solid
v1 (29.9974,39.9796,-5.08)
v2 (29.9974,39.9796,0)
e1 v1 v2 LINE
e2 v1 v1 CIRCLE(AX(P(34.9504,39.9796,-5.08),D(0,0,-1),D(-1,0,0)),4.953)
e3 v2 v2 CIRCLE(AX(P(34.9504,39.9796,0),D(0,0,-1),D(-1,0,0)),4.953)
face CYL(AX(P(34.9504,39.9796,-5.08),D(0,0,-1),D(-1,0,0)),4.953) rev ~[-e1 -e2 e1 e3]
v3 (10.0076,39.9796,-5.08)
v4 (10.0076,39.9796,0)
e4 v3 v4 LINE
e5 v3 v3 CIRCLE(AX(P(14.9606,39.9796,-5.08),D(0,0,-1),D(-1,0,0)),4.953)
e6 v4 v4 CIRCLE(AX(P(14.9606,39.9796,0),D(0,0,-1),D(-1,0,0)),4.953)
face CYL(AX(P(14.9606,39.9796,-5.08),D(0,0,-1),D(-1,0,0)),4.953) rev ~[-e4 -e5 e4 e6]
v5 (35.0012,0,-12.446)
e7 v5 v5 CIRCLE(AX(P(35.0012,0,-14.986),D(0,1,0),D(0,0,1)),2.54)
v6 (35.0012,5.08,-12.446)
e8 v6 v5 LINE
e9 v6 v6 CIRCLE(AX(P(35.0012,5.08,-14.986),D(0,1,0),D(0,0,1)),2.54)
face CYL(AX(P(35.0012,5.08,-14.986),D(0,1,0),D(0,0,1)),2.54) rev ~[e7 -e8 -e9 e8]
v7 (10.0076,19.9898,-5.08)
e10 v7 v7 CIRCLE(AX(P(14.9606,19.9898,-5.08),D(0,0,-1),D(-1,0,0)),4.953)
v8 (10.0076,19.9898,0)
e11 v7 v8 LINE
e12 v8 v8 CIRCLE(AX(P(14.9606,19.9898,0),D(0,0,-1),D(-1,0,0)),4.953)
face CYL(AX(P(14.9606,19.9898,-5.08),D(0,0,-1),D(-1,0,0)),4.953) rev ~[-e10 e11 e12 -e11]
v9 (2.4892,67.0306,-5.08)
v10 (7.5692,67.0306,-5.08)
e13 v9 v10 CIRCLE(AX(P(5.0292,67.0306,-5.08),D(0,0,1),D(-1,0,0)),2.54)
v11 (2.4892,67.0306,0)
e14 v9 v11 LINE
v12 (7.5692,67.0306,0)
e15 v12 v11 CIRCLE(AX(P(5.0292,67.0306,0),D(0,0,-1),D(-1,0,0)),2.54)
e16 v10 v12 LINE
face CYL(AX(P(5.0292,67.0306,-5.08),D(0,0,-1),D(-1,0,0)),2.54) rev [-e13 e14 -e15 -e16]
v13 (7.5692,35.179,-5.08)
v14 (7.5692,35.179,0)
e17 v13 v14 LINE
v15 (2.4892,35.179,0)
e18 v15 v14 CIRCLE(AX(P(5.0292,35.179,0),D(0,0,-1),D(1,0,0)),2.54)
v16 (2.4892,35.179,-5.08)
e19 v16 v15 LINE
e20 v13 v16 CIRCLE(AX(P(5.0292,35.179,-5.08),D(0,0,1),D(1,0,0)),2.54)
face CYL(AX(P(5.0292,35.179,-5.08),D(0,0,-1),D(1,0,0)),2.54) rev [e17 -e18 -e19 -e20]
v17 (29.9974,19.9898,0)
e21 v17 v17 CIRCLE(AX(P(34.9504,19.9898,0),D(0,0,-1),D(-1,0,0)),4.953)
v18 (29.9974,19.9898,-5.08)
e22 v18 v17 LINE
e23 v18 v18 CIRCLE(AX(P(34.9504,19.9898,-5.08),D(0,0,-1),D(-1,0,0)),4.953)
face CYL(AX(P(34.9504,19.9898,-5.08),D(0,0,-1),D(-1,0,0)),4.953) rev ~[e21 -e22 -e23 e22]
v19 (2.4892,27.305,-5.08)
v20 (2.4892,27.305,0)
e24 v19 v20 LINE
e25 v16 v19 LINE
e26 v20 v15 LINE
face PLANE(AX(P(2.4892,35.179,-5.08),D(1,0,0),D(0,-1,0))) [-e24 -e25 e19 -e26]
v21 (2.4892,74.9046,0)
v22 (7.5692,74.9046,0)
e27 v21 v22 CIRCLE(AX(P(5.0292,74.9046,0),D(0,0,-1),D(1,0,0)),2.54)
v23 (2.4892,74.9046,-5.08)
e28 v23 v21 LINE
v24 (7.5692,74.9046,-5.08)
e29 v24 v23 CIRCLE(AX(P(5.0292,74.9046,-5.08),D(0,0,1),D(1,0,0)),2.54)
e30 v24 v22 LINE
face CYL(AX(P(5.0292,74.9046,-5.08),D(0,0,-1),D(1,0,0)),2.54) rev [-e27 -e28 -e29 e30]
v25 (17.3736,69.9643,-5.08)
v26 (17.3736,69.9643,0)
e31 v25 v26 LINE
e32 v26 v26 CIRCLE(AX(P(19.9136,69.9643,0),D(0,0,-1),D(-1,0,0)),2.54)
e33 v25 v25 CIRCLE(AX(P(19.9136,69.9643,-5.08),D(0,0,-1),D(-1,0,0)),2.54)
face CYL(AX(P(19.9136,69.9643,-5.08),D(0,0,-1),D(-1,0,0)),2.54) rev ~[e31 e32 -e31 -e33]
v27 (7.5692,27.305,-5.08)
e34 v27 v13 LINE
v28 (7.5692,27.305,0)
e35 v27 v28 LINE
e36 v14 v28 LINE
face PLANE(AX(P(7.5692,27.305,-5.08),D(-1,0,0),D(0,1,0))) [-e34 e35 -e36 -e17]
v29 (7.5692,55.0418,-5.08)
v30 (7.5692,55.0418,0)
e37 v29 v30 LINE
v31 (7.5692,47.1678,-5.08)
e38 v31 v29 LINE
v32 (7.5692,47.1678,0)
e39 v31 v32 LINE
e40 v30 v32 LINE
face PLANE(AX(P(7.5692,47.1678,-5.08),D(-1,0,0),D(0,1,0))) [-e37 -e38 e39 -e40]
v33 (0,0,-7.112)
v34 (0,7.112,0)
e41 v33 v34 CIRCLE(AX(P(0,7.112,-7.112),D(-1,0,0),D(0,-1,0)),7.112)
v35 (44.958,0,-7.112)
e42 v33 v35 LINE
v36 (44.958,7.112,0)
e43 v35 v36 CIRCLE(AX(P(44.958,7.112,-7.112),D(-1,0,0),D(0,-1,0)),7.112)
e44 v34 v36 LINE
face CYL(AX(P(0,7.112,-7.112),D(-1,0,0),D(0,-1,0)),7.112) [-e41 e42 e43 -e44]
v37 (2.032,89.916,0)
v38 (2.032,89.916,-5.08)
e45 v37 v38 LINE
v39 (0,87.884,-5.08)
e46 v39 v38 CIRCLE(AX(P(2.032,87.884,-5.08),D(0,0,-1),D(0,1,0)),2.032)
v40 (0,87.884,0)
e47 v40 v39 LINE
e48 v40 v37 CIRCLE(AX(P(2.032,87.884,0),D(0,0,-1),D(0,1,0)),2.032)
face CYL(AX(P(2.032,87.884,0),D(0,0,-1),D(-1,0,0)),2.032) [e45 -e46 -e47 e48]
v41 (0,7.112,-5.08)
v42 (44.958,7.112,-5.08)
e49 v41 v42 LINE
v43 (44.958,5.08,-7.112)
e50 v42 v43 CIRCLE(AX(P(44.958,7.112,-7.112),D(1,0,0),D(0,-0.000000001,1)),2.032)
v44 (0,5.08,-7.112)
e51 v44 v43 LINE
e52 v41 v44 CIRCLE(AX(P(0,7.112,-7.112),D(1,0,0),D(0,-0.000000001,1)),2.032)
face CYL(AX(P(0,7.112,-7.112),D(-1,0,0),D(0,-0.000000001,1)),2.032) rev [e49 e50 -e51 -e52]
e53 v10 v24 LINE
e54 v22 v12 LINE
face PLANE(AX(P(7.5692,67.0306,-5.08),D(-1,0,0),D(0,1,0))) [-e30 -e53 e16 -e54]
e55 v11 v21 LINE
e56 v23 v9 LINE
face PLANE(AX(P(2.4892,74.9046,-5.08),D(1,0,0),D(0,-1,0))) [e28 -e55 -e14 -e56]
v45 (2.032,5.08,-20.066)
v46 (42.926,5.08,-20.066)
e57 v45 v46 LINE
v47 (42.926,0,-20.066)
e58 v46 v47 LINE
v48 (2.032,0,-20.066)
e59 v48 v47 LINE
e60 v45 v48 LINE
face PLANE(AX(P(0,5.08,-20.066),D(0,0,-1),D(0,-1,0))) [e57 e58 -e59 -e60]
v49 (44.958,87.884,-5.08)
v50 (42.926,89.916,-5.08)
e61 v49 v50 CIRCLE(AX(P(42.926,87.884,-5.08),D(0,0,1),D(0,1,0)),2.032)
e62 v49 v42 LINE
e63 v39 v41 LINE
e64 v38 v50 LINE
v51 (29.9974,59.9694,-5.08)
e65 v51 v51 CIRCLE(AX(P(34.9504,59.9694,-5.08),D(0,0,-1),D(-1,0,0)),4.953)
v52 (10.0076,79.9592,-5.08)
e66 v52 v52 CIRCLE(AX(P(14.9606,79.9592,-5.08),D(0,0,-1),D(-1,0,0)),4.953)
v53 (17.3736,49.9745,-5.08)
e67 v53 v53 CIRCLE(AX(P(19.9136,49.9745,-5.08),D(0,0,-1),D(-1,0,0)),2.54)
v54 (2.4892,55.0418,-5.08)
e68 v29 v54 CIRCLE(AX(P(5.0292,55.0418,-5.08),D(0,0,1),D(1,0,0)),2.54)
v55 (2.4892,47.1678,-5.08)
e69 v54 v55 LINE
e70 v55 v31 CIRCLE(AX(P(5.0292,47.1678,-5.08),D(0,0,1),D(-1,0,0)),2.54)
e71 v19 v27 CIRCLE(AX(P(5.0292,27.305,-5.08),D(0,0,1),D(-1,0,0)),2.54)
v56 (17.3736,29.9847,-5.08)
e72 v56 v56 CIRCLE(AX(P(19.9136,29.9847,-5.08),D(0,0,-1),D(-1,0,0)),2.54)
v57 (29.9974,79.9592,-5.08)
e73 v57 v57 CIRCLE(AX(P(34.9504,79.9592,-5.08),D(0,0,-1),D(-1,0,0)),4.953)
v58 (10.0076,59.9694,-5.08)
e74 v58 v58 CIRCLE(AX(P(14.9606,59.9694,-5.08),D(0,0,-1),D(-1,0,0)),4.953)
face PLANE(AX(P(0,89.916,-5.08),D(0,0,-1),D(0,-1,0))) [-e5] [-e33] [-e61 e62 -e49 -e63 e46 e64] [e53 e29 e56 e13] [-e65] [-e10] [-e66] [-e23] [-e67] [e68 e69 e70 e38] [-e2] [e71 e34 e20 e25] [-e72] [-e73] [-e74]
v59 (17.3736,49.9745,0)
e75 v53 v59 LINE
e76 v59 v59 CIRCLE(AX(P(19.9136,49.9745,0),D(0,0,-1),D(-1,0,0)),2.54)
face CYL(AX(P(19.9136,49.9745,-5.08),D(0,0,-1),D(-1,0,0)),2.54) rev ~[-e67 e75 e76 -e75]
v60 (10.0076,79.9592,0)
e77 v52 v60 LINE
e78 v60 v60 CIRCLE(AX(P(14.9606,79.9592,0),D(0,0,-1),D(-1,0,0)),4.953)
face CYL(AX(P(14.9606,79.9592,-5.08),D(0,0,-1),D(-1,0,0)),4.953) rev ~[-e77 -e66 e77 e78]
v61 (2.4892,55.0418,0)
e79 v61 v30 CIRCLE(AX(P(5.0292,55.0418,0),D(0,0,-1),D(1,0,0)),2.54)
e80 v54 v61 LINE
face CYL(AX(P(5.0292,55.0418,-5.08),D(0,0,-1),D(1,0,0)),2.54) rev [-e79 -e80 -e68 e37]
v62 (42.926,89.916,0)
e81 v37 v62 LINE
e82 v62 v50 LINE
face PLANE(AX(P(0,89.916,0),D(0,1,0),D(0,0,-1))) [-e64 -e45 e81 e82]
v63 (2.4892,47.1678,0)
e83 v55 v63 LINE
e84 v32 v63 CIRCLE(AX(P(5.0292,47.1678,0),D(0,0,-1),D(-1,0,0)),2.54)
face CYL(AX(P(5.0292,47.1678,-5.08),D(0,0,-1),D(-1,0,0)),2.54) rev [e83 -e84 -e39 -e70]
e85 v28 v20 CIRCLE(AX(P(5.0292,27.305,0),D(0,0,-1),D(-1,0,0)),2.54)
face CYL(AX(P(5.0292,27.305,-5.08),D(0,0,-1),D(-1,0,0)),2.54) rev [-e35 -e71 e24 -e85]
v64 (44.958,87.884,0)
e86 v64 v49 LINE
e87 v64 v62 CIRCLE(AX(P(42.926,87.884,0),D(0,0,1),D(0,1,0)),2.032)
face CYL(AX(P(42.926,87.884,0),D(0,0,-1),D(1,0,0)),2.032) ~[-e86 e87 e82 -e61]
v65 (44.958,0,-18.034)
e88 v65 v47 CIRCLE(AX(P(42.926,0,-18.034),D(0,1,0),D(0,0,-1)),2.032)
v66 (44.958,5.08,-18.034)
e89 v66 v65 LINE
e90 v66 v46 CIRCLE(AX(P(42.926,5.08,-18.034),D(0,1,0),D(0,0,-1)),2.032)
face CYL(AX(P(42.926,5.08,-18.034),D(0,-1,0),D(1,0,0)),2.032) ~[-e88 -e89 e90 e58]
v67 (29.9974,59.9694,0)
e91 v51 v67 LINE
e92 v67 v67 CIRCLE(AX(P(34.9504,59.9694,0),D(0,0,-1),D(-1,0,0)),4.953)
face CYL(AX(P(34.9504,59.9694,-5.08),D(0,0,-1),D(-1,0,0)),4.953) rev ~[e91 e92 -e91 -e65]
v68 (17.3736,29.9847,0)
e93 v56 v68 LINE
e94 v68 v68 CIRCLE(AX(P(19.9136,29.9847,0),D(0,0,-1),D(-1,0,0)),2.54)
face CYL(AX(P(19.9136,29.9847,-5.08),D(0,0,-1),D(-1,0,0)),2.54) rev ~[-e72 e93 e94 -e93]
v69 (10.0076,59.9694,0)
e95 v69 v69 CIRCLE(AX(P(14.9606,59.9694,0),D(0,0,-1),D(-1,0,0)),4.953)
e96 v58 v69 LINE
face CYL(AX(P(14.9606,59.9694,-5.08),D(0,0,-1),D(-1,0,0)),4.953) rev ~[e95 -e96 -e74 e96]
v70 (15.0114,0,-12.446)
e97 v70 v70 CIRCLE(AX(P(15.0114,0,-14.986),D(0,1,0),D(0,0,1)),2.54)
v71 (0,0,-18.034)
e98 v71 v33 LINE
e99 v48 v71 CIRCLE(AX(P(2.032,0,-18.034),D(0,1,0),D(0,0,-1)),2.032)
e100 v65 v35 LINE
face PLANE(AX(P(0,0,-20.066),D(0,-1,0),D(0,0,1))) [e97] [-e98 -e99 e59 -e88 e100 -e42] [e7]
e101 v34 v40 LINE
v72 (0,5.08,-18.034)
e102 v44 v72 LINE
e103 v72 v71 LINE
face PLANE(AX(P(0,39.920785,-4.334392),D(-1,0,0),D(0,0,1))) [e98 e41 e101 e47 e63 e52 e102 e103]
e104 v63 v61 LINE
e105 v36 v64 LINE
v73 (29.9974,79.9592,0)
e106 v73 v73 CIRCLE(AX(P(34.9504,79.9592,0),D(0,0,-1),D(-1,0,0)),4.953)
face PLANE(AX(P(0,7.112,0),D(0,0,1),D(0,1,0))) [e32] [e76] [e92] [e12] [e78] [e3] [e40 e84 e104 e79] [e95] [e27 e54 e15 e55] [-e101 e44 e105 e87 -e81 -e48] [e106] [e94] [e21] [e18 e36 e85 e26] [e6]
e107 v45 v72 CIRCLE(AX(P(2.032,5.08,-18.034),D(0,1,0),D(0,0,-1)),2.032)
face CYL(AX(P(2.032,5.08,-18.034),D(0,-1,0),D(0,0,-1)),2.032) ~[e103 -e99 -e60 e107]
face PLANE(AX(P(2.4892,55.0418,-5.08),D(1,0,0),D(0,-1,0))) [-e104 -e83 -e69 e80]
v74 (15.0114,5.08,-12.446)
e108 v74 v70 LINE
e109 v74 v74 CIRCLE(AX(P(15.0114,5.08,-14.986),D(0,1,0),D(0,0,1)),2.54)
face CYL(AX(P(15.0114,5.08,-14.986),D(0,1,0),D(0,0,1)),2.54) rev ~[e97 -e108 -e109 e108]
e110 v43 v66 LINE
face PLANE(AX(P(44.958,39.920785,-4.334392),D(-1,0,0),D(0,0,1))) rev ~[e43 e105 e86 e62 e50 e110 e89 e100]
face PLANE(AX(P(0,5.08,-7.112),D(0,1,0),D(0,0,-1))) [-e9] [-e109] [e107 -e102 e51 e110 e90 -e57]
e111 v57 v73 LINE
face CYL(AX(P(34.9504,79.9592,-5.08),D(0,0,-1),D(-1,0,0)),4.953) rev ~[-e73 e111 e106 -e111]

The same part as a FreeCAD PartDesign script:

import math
import FreeCAD as App
import Part
import Sketcher
from FreeCAD import Vector
Q = App.Units.Quantity


def edges_at(feature, points):
    """Names of the edges that pass closest to the given points."""
    edges = feature.Shape.Edges
    near = lambda p: min(range(len(edges)), key=lambda i: edges[i].distToShape(Part.Vertex(*p))[0])
    return sorted({f"Edge{near(p) + 1}" for p in points})

doc = App.newDocument("Part")
body = doc.addObject("PartDesign::Body", "Body")

# Sketch on YZ plane
sketch1 = body.newObject("Sketcher::SketchObject", "Sketch")
sketch1.AttachmentSupport = (doc.getObject("YZ_Plane"), [""])
sketch1.MapMode = "FlatFace"
sketch1.addGeometry(Part.LineSegment(Vector(89.916, 0, 0), Vector(7.112, 0, 0)), False)
sketch1.addGeometry(Part.ArcOfCircle(Part.Circle(Vector(7.112, -7.112, 0), Vector(0, 0, 1), 7.112), math.radians(90), math.radians(180)), False)
sketch1.addGeometry(Part.LineSegment(Vector(0, -7.112, 0), Vector(0, -20.066, 0)), False)
sketch1.addGeometry(Part.LineSegment(Vector(0, -20.066, 0), Vector(5.08, -20.066, 0)), False)
sketch1.addGeometry(Part.LineSegment(Vector(5.08, -20.066, 0), Vector(5.08, -7.112, 0)), False)
sketch1.addGeometry(Part.ArcOfCircle(Part.Circle(Vector(7.112, -7.112, 0), Vector(0, 0, 1), 2.032), math.radians(90), math.radians(180)), False)
sketch1.addGeometry(Part.LineSegment(Vector(7.112, -5.08, 0), Vector(89.916, -5.08, 0)), False)
sketch1.addGeometry(Part.LineSegment(Vector(89.916, -5.08, 0), Vector(89.916, 0, 0)), False)
sketch1.addConstraint(Sketcher.Constraint("Tangent", 0, 2, 1, 1))
sketch1.addConstraint(Sketcher.Constraint("Tangent", 1, 2, 2, 1))
sketch1.addConstraint(Sketcher.Constraint("Coincident", 2, 2, 3, 1))
sketch1.addConstraint(Sketcher.Constraint("Coincident", 3, 2, 4, 1))
sketch1.addConstraint(Sketcher.Constraint("Tangent", 4, 2, 5, 2))
sketch1.addConstraint(Sketcher.Constraint("Tangent", 5, 1, 6, 1))
sketch1.addConstraint(Sketcher.Constraint("Coincident", 6, 2, 7, 1))
sketch1.addConstraint(Sketcher.Constraint("Coincident", 7, 2, 0, 1))
sketch1.addConstraint(Sketcher.Constraint("Horizontal", 0))
sketch1.addConstraint(Sketcher.Constraint("Vertical", 2))
sketch1.addConstraint(Sketcher.Constraint("Horizontal", 3))
sketch1.addConstraint(Sketcher.Constraint("Vertical", 4))
sketch1.addConstraint(Sketcher.Constraint("Horizontal", 6))
sketch1.addConstraint(Sketcher.Constraint("Vertical", 7))
sketch1.addConstraint(Sketcher.Constraint("Coincident", 5, 3, 1, 3))
sketch1.addConstraint(Sketcher.Constraint("PointOnObject", 0, 2, -1))
sketch1.addConstraint(Sketcher.Constraint("PointOnObject", 1, 2, -2))
sketch1.addConstraint(Sketcher.Constraint("Radius", 1, Q("0.28 in")))
sketch1.addConstraint(Sketcher.Constraint("Radius", 5, Q("0.08 in")))
sketch1.addConstraint(Sketcher.Constraint("DistanceX", 0, 2, 0, 1, Q("3.26 in")))
sketch1.addConstraint(Sketcher.Constraint("DistanceY", 2, 2, 2, 1, Q("0.51 in")))
pad1 = body.newObject("PartDesign::Pad", "Pad")
pad1.Profile = sketch1
pad1.Length = Q("1.77 in")

# Sketch on XY plane
sketch2 = body.newObject("Sketcher::SketchObject", "Sketch001")
sketch2.AttachmentSupport = (doc.getObject("XY_Plane"), [""])
sketch2.MapMode = "FlatFace"
sketch2.AttachmentOffset = App.Placement(Vector(0, 0, -0.2 * 25.4), App.Rotation())
sketch2.addGeometry(Part.Circle(Vector(34.9504, 79.9592, 0), Vector(0, 0, 1), 4.953), False)
sketch2.addGeometry(Part.Circle(Vector(14.9606, 79.9592, 0), Vector(0, 0, 1), 4.953), False)
sketch2.addGeometry(Part.Circle(Vector(14.9606, 59.9694, 0), Vector(0, 0, 1), 4.953), False)
sketch2.addGeometry(Part.Circle(Vector(14.9606, 39.9796, 0), Vector(0, 0, 1), 4.953), False)
sketch2.addGeometry(Part.Circle(Vector(14.9606, 19.9898, 0), Vector(0, 0, 1), 4.953), False)
sketch2.addGeometry(Part.Circle(Vector(34.9504, 59.9694, 0), Vector(0, 0, 1), 4.953), False)
sketch2.addGeometry(Part.Circle(Vector(34.9504, 39.9796, 0), Vector(0, 0, 1), 4.953), False)
sketch2.addGeometry(Part.Circle(Vector(34.9504, 19.9898, 0), Vector(0, 0, 1), 4.953), False)
sketch2.addGeometry(Part.Circle(Vector(19.9136, 49.9745, 0), Vector(0, 0, 1), 2.54), False)
sketch2.addGeometry(Part.Circle(Vector(19.9136, 69.9643, 0), Vector(0, 0, 1), 2.54), False)
sketch2.addGeometry(Part.Circle(Vector(19.9136, 29.9847, 0), Vector(0, 0, 1), 2.54), False)
sketch2.addGeometry(Part.LineSegment(Vector(2.4892, 67.0306, 0), Vector(2.4892, 74.9046, 0)), False)
sketch2.addGeometry(Part.ArcOfCircle(Part.Circle(Vector(5.0292, 74.9046, 0), Vector(0, 0, 1), 2.54), math.radians(0), math.radians(180)), False)
sketch2.addGeometry(Part.LineSegment(Vector(7.5692, 74.9046, 0), Vector(7.5692, 67.0306, 0)), False)
sketch2.addGeometry(Part.ArcOfCircle(Part.Circle(Vector(5.0292, 67.0306, 0), Vector(0, 0, 1), 2.54), math.radians(180), math.radians(360)), False)
sketch2.addGeometry(Part.LineSegment(Vector(2.4892, 47.1678, 0), Vector(2.4892, 55.0418, 0)), False)
sketch2.addGeometry(Part.ArcOfCircle(Part.Circle(Vector(5.0292, 55.0418, 0), Vector(0, 0, 1), 2.54), math.radians(0), math.radians(180)), False)
sketch2.addGeometry(Part.LineSegment(Vector(7.5692, 55.0418, 0), Vector(7.5692, 47.1678, 0)), False)
sketch2.addGeometry(Part.ArcOfCircle(Part.Circle(Vector(5.0292, 47.1678, 0), Vector(0, 0, 1), 2.54), math.radians(180), math.radians(360)), False)
sketch2.addGeometry(Part.LineSegment(Vector(2.4892, 27.305, 0), Vector(2.4892, 35.179, 0)), False)
sketch2.addGeometry(Part.ArcOfCircle(Part.Circle(Vector(5.0292, 35.179, 0), Vector(0, 0, 1), 2.54), math.radians(0), math.radians(180)), False)
sketch2.addGeometry(Part.LineSegment(Vector(7.5692, 35.179, 0), Vector(7.5692, 27.305, 0)), False)
sketch2.addGeometry(Part.ArcOfCircle(Part.Circle(Vector(5.0292, 27.305, 0), Vector(0, 0, 1), 2.54), math.radians(180), math.radians(360)), False)
sketch2.addConstraint(Sketcher.Constraint("Tangent", 11, 2, 12, 2))
sketch2.addConstraint(Sketcher.Constraint("Tangent", 12, 1, 13, 1))
sketch2.addConstraint(Sketcher.Constraint("Tangent", 13, 2, 14, 2))
sketch2.addConstraint(Sketcher.Constraint("Tangent", 14, 1, 11, 1))
sketch2.addConstraint(Sketcher.Constraint("Tangent", 15, 2, 16, 2))
sketch2.addConstraint(Sketcher.Constraint("Tangent", 16, 1, 17, 1))
sketch2.addConstraint(Sketcher.Constraint("Tangent", 17, 2, 18, 2))
sketch2.addConstraint(Sketcher.Constraint("Tangent", 18, 1, 15, 1))
sketch2.addConstraint(Sketcher.Constraint("Tangent", 19, 2, 20, 2))
sketch2.addConstraint(Sketcher.Constraint("Tangent", 20, 1, 21, 1))
sketch2.addConstraint(Sketcher.Constraint("Tangent", 21, 2, 22, 2))
sketch2.addConstraint(Sketcher.Constraint("Tangent", 22, 1, 19, 1))
sketch2.addConstraint(Sketcher.Constraint("Vertical", 11))
sketch2.addConstraint(Sketcher.Constraint("Vertical", 13))
sketch2.addConstraint(Sketcher.Constraint("Vertical", 15))
sketch2.addConstraint(Sketcher.Constraint("Vertical", 17))
sketch2.addConstraint(Sketcher.Constraint("Vertical", 19))
sketch2.addConstraint(Sketcher.Constraint("Vertical", 21))
sketch2.addConstraint(Sketcher.Constraint("Equal", 0, 1))
sketch2.addConstraint(Sketcher.Constraint("Equal", 1, 2))
sketch2.addConstraint(Sketcher.Constraint("Equal", 2, 3))
sketch2.addConstraint(Sketcher.Constraint("Equal", 3, 4))
sketch2.addConstraint(Sketcher.Constraint("Equal", 4, 5))
sketch2.addConstraint(Sketcher.Constraint("Equal", 5, 6))
sketch2.addConstraint(Sketcher.Constraint("Equal", 6, 7))
sketch2.addConstraint(Sketcher.Constraint("Equal", 8, 9))
sketch2.addConstraint(Sketcher.Constraint("Equal", 9, 10))
sketch2.addConstraint(Sketcher.Constraint("Equal", 10, 12))
sketch2.addConstraint(Sketcher.Constraint("Equal", 14, 16))
sketch2.addConstraint(Sketcher.Constraint("Equal", 18, 20))
sketch2.addConstraint(Sketcher.Constraint("Horizontal", 0, 3, 1, 3))
sketch2.addConstraint(Sketcher.Constraint("Horizontal", 2, 3, 5, 3))
sketch2.addConstraint(Sketcher.Constraint("Horizontal", 3, 3, 6, 3))
sketch2.addConstraint(Sketcher.Constraint("Horizontal", 4, 3, 7, 3))
sketch2.addConstraint(Sketcher.Constraint("Vertical", 1, 3, 2, 3))
sketch2.addConstraint(Sketcher.Constraint("Vertical", 2, 3, 3, 3))
sketch2.addConstraint(Sketcher.Constraint("Vertical", 3, 3, 4, 3))
sketch2.addConstraint(Sketcher.Constraint("Vertical", 0, 3, 5, 3))
sketch2.addConstraint(Sketcher.Constraint("Vertical", 5, 3, 6, 3))
sketch2.addConstraint(Sketcher.Constraint("Vertical", 6, 3, 7, 3))
sketch2.addConstraint(Sketcher.Constraint("Vertical", 8, 3, 9, 3))
sketch2.addConstraint(Sketcher.Constraint("Vertical", 9, 3, 10, 3))
sketch2.addConstraint(Sketcher.Constraint("Vertical", 14, 3, 16, 3))
sketch2.addConstraint(Sketcher.Constraint("Vertical", 18, 3, 20, 3))
sketch2.addConstraint(Sketcher.Constraint("Equal", 13, 15))
sketch2.addConstraint(Sketcher.Constraint("Equal", 17, 19))
sketch2.addConstraint(Sketcher.Constraint("Diameter", 8, Q("0.2 in")))
sketch2.addConstraint(Sketcher.Constraint("Diameter", 0, Q("0.39 in")))
sketch2.addConstraint(Sketcher.Constraint("DistanceY", 11, 1, 11, 2, Q("0.31 in")))
sketch2.addConstraint(Sketcher.Constraint("DistanceX", -1, 1, 0, 3, Q("1.376 in")))
sketch2.addConstraint(Sketcher.Constraint("DistanceY", -1, 1, 0, 3, Q("3.148 in")))
sketch2.addConstraint(Sketcher.Constraint("DistanceX", -1, 1, 1, 3, Q("0.589 in")))
sketch2.addConstraint(Sketcher.Constraint("DistanceY", -1, 1, 2, 3, Q("2.361 in")))
sketch2.addConstraint(Sketcher.Constraint("DistanceY", -1, 1, 3, 3, Q("1.574 in")))
sketch2.addConstraint(Sketcher.Constraint("DistanceY", -1, 1, 4, 3, Q("0.787 in")))
sketch2.addConstraint(Sketcher.Constraint("DistanceX", -1, 1, 8, 3, Q("0.784 in")))
sketch2.addConstraint(Sketcher.Constraint("DistanceX", -1, 1, 12, 3, Q("0.198 in")))
sketch2.addConstraint(Sketcher.Constraint("DistanceY", -1, 1, 12, 3, Q("2.949 in")))
sketch2.addConstraint(Sketcher.Constraint("DistanceY", -1, 1, 16, 3, Q("2.167 in")))
sketch2.addConstraint(Sketcher.Constraint("DistanceY", -1, 1, 20, 3, Q("1.385 in")))
sketch2.addConstraint(Sketcher.Constraint("DistanceY", 8, 3, 9, 3, Q("0.787 in")))
sketch2.addConstraint(Sketcher.Constraint("DistanceY", 10, 3, 8, 3, Q("0.787 in")))
sketch2.addConstraint(Sketcher.Constraint("DistanceY", -1, 1, 8, 3, Q("1.9675 in")))
pocket1 = body.newObject("PartDesign::Pocket", "Pocket")
pocket1.Profile = sketch2
pocket1.Type = "ThroughAll"
pocket1.Reversed = True
doc.recompute()

fillet = body.newObject("PartDesign::Fillet", "Fillet")
fillet.Base = (pocket1, edges_at(pocket1, [(44.958, 89.916, -2.54)]))
fillet.Radius = Q("0.08 in")
doc.recompute()

fillet2 = body.newObject("PartDesign::Fillet", "Fillet001")
fillet2.Base = (fillet, edges_at(fillet, [(44.958, 2.54, -20.066)]))
fillet2.Radius = Q("0.08 in")
doc.recompute()

fillet3 = body.newObject("PartDesign::Fillet", "Fillet002")
fillet3.Base = (fillet2, edges_at(fillet2, [(0, 2.54, -20.066)]))
fillet3.Radius = Q("0.08 in")
doc.recompute()

fillet4 = body.newObject("PartDesign::Fillet", "Fillet003")
fillet4.Base = (fillet3, edges_at(fillet3, [(0, 89.916, -2.54)]))
fillet4.Radius = Q("0.08 in")

# Sketch on XZ plane
sketch3 = body.newObject("Sketcher::SketchObject", "Sketch002")
sketch3.AttachmentSupport = (doc.getObject("XZ_Plane"), [""])
sketch3.MapMode = "FlatFace"
sketch3.AttachmentOffset = App.Placement(Vector(0, 0, -0.2 * 25.4), App.Rotation())
sketch3.addGeometry(Part.Circle(Vector(15.0114, -14.986, 0), Vector(0, 0, 1), 2.54), False)
sketch3.addGeometry(Part.Circle(Vector(35.0012, -14.986, 0), Vector(0, 0, 1), 2.54), False)
sketch3.addConstraint(Sketcher.Constraint("Equal", 0, 1))
sketch3.addConstraint(Sketcher.Constraint("Horizontal", 0, 3, 1, 3))
sketch3.addConstraint(Sketcher.Constraint("Diameter", 0, Q("0.2 in")))
sketch3.addConstraint(Sketcher.Constraint("DistanceY", 0, 3, -1, 1, Q("0.59 in")))
sketch3.addConstraint(Sketcher.Constraint("DistanceX", -1, 1, 0, 3, Q("0.591 in")))
sketch3.addConstraint(Sketcher.Constraint("DistanceX", -1, 1, 1, 3, Q("1.378 in")))
pocket2 = body.newObject("PartDesign::Pocket", "Pocket001")
pocket2.Profile = sketch3
pocket2.Type = "ThroughAll"
pocket2.Reversed = True

doc.recompute()
